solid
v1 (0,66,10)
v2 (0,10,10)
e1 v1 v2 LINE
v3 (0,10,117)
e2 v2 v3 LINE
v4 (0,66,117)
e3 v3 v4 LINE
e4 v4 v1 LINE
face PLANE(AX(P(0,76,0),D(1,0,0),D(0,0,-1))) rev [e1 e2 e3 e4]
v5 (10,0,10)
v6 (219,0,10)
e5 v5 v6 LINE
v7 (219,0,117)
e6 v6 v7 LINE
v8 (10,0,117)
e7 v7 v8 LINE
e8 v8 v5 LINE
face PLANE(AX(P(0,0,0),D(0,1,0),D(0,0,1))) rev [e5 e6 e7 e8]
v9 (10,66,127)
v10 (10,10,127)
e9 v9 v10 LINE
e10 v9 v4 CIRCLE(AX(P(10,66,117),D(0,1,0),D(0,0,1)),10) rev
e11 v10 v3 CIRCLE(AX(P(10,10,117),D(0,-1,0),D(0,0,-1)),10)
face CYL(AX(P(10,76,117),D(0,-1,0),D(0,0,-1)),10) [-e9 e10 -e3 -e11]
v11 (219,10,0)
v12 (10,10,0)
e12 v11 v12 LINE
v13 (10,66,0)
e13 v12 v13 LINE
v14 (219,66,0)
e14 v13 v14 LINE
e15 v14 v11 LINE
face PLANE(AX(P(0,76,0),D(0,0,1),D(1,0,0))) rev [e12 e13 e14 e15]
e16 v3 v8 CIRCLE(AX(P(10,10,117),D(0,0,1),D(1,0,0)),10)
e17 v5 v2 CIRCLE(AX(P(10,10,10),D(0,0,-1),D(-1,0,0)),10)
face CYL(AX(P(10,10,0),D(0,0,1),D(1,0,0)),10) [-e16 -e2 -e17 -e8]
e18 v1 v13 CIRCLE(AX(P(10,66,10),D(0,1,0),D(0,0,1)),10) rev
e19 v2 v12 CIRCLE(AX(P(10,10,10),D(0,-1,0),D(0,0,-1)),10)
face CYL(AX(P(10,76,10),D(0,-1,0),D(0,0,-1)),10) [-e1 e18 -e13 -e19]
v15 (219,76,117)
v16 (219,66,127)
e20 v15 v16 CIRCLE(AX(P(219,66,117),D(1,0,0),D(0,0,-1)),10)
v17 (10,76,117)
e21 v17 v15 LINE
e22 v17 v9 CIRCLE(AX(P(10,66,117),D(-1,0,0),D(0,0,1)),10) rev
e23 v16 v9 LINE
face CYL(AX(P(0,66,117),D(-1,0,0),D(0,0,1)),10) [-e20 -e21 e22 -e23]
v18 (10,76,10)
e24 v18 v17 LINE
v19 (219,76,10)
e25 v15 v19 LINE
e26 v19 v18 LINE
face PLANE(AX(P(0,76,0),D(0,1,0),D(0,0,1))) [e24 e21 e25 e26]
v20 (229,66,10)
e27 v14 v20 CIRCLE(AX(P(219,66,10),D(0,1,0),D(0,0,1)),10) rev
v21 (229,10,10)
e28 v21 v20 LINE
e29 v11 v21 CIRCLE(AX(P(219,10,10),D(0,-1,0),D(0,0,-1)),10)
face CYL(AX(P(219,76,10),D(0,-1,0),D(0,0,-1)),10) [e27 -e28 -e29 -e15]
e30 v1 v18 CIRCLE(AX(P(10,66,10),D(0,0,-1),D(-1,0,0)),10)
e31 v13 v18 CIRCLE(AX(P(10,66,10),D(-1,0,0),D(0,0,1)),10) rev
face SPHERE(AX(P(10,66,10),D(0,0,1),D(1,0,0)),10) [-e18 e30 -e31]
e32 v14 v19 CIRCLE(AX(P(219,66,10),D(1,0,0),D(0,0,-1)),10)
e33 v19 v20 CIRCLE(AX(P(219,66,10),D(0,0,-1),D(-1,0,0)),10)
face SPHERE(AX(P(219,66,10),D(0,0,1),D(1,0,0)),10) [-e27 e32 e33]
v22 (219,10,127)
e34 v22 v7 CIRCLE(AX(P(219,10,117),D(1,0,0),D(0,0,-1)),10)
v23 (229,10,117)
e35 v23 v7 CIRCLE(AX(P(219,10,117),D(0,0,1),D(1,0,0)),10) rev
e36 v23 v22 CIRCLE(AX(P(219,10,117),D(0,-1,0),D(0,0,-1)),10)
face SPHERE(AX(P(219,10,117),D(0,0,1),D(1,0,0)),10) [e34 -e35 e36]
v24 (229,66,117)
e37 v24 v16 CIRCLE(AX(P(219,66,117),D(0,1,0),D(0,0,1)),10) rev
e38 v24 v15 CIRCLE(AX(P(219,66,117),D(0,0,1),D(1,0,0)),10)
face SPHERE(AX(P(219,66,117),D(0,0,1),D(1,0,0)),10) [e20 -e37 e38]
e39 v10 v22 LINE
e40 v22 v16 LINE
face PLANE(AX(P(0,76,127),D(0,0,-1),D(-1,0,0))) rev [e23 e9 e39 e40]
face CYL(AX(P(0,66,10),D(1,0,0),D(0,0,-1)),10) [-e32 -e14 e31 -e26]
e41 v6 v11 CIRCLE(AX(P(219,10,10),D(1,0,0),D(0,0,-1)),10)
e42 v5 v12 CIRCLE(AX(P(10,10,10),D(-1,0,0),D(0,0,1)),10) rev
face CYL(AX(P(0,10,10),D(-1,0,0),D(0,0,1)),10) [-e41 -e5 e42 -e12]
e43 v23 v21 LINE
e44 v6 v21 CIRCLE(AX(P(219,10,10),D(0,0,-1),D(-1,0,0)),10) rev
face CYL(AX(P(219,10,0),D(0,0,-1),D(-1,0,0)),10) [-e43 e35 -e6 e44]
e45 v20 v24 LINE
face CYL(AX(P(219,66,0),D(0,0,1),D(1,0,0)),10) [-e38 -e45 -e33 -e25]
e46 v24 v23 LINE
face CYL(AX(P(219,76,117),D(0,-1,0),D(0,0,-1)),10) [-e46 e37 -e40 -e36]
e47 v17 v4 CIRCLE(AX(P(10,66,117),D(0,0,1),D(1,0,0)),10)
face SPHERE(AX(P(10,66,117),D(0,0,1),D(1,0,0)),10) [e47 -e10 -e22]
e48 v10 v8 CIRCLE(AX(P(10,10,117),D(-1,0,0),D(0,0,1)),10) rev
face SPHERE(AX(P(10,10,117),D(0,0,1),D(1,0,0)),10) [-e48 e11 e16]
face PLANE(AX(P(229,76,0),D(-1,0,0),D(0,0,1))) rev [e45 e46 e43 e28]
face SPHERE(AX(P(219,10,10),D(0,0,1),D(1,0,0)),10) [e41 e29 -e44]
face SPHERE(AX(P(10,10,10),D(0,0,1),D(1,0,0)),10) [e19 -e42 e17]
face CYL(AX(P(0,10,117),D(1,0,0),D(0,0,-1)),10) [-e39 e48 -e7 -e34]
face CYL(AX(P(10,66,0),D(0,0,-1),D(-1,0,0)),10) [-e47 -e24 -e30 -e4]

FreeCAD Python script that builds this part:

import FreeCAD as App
import Part
import Sketcher

V = App.Vector


def add_polygon(sketch, points):
    """Adds a closed chain of lines whose ends are joined by coincident constraints."""
    first, n = sketch.GeometryCount, len(points)
    for a, b in zip(points, points[1:] + points[:1]):
        sketch.addGeometry(Part.LineSegment(App.Vector(*a, 0), App.Vector(*b, 0)), False)
    for i in range(n):
        sketch.addConstraint(Sketcher.Constraint("Coincident", first + i, 2, first + (i + 1) % n, 1))

doc = App.newDocument("Part")
body = doc.addObject("PartDesign::Body", "Body")

# Sketch on XZ plane
sketch1 = body.newObject("Sketcher::SketchObject", "Sketch")
sketch1.AttachmentSupport = (doc.getObject("XZ_Plane"), [""])
sketch1.MapMode = "FlatFace"
add_polygon(sketch1, [(0, 0), (0, 127), (229, 127), (229, 0)])  # lines 0-3
sketch1.addConstraint(Sketcher.Constraint("Vertical", 0))
sketch1.addConstraint(Sketcher.Constraint("Horizontal", 1))
sketch1.addConstraint(Sketcher.Constraint("Vertical", 2))
sketch1.addConstraint(Sketcher.Constraint("Horizontal", 3))
sketch1.addConstraint(Sketcher.Constraint("Coincident", 3, 2, -1, 1))
sketch1.addConstraint(Sketcher.Constraint("DistanceX", 1, 1, 1, 2, 229.0))
sketch1.addConstraint(Sketcher.Constraint("DistanceY", 0, 1, 0, 2, 127.0))
pad1 = body.newObject("PartDesign::Pad", "Pad")
pad1.Profile = sketch1
pad1.Length = 76
pad1.Reversed = True
doc.recompute()

fillet = body.newObject("PartDesign::Fillet", "Fillet")
fillet.Base = (pad1, ["Edge1"])
fillet.UseAllEdges = True
fillet.Radius = 10

doc.recompute()
